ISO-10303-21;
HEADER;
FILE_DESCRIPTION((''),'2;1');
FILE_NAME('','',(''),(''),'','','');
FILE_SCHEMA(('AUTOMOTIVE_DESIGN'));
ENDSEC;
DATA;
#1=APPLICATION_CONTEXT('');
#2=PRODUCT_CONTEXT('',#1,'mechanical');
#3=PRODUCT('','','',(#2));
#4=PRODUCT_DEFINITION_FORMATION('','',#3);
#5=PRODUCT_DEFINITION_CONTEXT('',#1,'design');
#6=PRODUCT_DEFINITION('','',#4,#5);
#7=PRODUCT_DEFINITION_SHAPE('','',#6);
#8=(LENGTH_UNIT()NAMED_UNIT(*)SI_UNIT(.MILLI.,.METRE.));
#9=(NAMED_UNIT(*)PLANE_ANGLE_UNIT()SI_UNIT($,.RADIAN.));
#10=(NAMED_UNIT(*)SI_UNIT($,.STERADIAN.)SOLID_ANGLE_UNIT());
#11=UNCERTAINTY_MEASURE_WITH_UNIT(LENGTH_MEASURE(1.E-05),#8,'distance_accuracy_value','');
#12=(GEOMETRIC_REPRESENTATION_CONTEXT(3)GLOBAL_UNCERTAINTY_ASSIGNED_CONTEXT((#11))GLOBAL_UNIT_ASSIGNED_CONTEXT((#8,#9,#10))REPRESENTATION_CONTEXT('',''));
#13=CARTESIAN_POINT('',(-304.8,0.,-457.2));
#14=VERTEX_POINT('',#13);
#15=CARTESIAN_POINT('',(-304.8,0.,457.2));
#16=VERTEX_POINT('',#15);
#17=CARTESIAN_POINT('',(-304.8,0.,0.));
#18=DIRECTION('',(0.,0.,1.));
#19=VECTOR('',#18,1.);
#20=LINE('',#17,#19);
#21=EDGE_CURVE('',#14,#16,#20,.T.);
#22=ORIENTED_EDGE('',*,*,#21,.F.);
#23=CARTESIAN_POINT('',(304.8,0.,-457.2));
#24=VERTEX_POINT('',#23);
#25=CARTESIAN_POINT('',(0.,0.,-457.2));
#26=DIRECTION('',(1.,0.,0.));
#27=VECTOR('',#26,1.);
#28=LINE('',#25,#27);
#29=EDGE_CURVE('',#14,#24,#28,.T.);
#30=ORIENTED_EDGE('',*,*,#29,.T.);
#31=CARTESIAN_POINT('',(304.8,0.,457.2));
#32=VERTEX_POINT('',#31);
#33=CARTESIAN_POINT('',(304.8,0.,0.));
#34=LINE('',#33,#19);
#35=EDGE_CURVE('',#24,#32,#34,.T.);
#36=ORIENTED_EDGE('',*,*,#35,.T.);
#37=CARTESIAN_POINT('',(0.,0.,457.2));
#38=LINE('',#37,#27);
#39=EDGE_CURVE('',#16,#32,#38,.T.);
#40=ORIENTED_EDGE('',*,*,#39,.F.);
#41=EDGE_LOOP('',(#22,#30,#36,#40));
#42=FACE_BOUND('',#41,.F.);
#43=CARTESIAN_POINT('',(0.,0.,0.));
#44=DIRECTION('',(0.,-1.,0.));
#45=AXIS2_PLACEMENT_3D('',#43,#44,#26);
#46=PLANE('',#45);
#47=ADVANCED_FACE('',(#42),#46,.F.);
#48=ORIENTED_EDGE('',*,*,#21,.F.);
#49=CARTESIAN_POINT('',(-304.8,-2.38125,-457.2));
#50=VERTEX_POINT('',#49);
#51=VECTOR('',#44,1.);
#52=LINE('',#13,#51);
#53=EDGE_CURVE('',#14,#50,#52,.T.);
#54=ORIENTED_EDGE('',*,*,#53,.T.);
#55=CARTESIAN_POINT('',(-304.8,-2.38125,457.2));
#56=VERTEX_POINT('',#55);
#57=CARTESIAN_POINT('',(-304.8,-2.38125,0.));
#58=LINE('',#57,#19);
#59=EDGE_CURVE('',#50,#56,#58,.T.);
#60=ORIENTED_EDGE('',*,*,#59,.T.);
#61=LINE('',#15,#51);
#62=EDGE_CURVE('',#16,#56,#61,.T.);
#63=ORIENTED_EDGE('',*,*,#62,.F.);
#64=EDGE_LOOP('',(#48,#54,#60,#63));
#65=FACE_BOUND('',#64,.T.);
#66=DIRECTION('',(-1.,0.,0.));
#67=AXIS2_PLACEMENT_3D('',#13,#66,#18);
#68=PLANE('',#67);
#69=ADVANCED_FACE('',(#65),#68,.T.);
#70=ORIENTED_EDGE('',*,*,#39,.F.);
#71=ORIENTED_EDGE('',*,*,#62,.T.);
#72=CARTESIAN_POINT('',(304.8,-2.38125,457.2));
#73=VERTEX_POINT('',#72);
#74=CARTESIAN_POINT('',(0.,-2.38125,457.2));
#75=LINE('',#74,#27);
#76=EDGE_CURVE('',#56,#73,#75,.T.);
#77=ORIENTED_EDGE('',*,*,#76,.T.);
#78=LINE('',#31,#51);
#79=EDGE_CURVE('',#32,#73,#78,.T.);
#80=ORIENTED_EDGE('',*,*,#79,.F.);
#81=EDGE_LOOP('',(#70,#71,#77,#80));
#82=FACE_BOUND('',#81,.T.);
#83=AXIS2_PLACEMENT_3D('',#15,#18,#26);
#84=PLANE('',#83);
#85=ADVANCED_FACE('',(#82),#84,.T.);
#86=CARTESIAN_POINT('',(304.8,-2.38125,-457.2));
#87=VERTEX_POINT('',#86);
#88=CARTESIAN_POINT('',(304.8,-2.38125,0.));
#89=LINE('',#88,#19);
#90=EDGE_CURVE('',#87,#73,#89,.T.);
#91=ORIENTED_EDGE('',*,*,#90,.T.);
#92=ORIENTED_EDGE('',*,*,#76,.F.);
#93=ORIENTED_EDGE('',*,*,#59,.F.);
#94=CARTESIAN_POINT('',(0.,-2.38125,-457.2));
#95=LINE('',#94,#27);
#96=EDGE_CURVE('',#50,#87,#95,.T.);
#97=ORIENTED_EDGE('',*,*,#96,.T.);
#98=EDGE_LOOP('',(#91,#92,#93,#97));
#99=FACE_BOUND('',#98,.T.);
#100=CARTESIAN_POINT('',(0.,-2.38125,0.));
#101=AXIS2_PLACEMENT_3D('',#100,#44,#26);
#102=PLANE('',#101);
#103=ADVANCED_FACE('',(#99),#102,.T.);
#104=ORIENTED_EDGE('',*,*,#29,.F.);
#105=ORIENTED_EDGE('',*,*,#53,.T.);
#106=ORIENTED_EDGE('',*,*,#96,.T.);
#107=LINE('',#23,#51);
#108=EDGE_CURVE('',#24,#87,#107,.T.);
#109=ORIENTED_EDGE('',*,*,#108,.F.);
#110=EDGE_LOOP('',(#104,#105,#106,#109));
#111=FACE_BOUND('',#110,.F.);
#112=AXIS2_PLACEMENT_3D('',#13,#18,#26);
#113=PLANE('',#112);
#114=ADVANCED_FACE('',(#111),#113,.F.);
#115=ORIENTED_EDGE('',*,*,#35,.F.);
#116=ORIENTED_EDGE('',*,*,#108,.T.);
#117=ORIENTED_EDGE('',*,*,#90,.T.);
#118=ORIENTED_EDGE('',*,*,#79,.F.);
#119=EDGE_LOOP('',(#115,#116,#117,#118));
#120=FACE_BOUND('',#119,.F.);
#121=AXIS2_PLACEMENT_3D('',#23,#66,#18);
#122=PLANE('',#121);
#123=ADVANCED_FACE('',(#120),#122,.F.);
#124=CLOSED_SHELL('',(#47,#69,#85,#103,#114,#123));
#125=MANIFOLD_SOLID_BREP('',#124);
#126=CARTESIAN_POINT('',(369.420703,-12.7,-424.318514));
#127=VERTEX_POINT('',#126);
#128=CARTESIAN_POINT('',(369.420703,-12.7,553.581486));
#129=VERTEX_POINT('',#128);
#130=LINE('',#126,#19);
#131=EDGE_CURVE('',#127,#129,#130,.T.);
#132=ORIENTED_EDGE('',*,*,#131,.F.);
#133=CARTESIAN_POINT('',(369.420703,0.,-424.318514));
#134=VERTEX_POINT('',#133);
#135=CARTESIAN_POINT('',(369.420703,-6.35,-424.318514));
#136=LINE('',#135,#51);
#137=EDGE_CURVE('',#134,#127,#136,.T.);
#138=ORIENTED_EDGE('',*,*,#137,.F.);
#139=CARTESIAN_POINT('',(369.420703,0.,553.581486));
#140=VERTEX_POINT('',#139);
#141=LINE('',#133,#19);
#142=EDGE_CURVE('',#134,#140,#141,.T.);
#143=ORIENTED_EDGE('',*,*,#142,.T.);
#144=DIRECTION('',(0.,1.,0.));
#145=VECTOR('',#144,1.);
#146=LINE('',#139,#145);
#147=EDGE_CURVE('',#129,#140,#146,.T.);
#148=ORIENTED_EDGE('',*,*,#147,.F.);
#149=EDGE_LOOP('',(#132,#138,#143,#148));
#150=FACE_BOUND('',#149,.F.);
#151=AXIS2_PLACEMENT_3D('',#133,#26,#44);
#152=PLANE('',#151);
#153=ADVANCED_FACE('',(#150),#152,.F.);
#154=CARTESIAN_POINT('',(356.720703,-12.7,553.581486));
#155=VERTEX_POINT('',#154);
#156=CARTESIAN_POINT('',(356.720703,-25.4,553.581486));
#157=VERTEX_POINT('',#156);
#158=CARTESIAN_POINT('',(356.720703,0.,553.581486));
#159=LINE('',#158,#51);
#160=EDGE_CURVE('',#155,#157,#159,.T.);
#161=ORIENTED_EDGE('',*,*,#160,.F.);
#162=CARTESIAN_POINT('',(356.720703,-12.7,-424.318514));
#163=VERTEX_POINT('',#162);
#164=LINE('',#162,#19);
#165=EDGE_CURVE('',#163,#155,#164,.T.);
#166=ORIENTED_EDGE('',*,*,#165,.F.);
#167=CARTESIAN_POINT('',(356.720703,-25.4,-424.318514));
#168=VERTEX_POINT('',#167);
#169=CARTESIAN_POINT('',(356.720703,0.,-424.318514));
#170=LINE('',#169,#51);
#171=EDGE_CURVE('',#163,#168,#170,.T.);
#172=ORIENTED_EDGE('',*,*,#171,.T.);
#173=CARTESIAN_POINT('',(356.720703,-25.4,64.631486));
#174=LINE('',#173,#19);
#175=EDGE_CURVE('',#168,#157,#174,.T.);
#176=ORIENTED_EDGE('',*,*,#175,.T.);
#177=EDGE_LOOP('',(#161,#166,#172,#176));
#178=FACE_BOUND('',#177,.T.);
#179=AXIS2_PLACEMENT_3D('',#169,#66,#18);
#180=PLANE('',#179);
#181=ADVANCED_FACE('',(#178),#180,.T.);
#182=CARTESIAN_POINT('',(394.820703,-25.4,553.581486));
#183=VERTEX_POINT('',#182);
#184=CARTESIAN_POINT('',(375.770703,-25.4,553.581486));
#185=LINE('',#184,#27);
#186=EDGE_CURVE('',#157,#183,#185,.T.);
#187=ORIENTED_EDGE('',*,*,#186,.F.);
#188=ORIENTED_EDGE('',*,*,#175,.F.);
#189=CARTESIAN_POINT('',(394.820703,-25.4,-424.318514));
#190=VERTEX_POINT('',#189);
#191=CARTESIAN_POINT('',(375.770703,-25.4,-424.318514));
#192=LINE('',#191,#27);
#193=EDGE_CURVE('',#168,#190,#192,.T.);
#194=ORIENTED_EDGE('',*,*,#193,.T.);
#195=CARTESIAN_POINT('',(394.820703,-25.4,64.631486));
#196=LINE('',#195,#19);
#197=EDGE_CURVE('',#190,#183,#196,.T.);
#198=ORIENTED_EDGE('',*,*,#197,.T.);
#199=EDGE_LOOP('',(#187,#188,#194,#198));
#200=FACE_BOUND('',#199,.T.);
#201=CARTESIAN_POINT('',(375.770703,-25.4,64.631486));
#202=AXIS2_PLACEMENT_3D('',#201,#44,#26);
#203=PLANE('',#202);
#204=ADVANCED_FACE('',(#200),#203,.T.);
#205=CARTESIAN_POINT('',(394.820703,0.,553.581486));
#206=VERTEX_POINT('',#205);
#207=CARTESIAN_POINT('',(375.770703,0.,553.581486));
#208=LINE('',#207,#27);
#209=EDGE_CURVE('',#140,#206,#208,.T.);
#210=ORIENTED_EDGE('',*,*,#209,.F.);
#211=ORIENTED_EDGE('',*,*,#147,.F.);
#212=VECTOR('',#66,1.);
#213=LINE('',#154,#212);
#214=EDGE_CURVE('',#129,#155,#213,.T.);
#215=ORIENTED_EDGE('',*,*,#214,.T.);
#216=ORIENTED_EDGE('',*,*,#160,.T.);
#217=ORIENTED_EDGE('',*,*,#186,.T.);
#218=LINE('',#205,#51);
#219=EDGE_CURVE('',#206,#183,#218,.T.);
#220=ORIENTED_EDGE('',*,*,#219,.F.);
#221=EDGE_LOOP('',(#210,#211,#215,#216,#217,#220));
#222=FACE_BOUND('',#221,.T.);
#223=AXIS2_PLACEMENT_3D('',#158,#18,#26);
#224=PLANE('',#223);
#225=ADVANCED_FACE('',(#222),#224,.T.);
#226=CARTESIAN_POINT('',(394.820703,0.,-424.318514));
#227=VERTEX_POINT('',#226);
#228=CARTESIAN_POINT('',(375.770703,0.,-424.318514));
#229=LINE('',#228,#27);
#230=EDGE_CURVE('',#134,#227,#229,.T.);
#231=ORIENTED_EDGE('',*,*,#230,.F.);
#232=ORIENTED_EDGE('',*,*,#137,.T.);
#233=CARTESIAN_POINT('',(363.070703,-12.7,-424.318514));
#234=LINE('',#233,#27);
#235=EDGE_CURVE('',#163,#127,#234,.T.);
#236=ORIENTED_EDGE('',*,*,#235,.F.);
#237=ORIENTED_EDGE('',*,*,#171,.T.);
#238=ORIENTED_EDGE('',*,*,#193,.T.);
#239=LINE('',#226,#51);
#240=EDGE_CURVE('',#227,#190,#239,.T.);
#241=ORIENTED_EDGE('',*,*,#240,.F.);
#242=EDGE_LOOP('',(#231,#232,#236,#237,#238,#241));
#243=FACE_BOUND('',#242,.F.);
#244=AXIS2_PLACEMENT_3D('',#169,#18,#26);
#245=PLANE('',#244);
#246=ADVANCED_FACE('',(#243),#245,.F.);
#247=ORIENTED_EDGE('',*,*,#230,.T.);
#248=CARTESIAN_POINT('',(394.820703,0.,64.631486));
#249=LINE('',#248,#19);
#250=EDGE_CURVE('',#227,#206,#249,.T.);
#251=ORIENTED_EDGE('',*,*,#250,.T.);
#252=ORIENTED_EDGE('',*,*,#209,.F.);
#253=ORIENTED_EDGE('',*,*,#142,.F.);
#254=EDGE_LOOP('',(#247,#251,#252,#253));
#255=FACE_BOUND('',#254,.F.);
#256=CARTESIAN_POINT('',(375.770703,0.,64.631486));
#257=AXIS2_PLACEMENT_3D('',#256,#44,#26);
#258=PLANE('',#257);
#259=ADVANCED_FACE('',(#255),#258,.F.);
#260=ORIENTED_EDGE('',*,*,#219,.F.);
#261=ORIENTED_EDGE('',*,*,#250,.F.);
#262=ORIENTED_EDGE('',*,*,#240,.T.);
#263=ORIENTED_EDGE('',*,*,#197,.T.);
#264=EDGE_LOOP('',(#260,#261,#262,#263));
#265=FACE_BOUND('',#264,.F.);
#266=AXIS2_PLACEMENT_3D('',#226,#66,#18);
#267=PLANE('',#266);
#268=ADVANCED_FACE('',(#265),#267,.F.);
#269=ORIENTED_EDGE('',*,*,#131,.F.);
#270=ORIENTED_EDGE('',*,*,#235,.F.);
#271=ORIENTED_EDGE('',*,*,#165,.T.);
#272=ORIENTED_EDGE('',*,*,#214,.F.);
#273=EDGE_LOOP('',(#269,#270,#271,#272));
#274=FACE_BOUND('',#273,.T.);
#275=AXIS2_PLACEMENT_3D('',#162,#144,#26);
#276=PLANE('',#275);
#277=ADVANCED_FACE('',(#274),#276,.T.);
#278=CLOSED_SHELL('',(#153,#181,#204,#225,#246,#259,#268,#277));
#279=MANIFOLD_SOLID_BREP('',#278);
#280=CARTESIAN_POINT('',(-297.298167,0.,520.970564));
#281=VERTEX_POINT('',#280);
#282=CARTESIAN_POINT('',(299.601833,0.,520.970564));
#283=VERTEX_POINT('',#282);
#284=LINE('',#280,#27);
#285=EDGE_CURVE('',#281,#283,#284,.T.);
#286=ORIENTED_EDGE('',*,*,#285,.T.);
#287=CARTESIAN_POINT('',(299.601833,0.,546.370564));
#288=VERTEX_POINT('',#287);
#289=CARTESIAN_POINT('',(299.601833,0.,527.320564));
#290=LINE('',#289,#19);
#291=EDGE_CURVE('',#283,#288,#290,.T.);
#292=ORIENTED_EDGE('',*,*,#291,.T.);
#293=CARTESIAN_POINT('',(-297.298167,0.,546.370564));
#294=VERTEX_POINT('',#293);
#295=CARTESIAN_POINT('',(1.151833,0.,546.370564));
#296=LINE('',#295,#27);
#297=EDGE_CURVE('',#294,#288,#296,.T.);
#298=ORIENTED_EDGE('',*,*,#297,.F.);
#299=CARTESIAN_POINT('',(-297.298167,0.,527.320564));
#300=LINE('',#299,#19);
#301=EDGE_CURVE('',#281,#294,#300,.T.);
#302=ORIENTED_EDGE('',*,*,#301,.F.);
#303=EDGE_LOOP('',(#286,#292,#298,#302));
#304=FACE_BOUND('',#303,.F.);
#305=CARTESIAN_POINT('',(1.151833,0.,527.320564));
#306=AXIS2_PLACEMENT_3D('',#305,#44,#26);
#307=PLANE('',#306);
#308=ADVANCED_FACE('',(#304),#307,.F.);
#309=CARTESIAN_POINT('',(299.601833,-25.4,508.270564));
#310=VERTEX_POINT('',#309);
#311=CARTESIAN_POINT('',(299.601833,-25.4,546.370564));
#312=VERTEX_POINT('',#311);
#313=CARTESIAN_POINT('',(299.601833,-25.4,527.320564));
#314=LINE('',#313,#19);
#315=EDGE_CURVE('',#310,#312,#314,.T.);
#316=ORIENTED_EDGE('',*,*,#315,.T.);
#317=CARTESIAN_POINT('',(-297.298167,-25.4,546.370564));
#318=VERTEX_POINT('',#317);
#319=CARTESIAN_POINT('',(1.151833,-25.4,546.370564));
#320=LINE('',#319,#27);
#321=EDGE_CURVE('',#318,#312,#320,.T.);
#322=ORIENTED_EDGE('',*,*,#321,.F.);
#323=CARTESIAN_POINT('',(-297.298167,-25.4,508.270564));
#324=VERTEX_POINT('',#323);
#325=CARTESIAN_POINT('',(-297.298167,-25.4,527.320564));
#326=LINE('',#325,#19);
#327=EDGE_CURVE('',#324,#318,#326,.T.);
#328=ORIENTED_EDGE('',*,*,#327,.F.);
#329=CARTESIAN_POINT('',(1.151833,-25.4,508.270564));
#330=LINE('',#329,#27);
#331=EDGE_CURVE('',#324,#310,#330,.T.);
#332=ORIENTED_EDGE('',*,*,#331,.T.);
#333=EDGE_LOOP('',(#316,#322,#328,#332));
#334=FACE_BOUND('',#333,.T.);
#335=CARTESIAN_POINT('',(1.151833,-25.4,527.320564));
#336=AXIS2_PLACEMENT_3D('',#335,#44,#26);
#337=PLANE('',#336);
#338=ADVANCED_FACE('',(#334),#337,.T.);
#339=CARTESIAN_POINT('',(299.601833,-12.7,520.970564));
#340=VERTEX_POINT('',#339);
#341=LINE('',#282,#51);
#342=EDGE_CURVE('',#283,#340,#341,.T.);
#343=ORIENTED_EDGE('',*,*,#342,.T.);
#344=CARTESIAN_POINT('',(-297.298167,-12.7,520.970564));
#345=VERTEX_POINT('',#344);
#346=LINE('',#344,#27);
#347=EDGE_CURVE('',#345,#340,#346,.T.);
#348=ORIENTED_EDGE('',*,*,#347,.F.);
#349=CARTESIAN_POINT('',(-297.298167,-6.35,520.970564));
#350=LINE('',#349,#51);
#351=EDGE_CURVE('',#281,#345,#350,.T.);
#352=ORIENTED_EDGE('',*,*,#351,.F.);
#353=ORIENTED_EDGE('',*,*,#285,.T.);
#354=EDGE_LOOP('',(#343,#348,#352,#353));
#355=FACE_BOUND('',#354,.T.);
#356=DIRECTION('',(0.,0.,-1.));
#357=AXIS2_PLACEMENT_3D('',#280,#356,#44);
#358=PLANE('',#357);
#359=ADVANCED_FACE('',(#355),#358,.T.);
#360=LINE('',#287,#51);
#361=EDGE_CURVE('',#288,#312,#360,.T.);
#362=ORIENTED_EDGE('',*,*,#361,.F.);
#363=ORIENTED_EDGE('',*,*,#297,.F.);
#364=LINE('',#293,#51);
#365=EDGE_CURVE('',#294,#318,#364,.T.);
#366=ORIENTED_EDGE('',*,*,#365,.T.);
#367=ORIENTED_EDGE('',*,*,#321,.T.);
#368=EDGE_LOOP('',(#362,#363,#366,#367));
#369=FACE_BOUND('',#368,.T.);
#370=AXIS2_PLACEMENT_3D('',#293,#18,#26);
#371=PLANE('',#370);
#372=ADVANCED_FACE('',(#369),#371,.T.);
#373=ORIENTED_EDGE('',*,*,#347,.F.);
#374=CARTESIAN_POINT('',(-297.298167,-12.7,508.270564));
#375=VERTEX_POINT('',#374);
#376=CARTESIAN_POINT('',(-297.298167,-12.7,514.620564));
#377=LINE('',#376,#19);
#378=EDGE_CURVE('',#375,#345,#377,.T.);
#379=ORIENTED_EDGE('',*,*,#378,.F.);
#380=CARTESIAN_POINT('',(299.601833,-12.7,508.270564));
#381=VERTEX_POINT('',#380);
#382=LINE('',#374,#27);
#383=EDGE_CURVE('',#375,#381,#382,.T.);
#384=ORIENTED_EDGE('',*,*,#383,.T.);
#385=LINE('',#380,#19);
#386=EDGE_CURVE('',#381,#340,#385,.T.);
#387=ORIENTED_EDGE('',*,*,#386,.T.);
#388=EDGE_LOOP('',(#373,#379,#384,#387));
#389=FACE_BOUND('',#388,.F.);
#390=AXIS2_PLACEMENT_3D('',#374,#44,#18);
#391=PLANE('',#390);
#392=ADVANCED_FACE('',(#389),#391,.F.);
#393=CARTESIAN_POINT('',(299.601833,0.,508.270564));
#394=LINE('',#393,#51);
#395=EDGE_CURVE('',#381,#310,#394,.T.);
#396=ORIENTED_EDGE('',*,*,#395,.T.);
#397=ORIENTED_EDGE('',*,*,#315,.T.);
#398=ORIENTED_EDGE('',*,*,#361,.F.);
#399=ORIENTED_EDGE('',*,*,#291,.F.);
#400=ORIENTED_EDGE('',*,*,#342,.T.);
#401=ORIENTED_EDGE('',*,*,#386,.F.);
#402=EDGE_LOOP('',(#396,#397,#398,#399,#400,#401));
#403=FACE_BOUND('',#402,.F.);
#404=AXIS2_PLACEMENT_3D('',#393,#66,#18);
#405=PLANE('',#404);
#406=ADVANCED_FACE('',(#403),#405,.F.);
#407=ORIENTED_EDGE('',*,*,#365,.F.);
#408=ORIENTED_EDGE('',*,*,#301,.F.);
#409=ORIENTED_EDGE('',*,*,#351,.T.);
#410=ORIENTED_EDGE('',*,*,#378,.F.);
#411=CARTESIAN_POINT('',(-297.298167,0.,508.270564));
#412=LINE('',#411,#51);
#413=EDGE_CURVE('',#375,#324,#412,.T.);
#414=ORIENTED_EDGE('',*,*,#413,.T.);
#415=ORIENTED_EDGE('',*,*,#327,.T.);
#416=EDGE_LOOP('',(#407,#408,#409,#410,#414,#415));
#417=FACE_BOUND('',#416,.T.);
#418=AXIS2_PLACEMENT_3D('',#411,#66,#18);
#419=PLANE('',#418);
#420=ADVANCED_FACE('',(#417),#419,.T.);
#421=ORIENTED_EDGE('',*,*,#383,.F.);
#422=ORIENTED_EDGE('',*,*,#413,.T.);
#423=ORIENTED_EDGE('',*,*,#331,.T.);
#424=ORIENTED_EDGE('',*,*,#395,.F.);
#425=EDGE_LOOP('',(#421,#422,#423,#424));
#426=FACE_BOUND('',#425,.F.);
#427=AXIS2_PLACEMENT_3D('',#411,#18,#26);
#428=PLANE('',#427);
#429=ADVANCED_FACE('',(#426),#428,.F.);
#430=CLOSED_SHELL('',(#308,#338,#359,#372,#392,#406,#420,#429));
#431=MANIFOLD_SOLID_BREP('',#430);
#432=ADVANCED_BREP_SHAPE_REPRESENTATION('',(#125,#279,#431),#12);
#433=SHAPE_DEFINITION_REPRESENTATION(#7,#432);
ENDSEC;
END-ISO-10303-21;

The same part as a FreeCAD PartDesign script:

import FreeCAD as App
import Part
import Sketcher
from FreeCAD import Vector
Q = App.Units.Quantity


def add_polygon(sketch, points):
    """Adds a closed chain of lines whose ends are joined by coincident constraints."""
    first, n = sketch.GeometryCount, len(points)
    for a, b in zip(points, points[1:] + points[:1]):
        sketch.addGeometry(Part.LineSegment(App.Vector(*a, 0), App.Vector(*b, 0)), False)
    for i in range(n):
        sketch.addConstraint(Sketcher.Constraint("Coincident", first + i, 2, first + (i + 1) % n, 1))

doc = App.newDocument("Part")
body = doc.addObject("PartDesign::Body", "Body")

sketch1 = body.newObject("Sketcher::SketchObject", "Sketch")
sketch1.AttachmentSupport = (doc.getObject("XZ_Plane"), [""])
sketch1.MapMode = "FlatFace"
add_polygon(sketch1, [(-305, 457), (-305, -457), (305, -457), (305, 457)])
sketch1.addConstraint([
    Sketcher.Constraint("Vertical", 0),
    Sketcher.Constraint("Horizontal", 1),
    Sketcher.Constraint("Vertical", 2),
    Sketcher.Constraint("Horizontal", 3),
    Sketcher.Constraint("Symmetric", 0, 2, 2, 2, -1, 1),
    Sketcher.Constraint("DistanceX", 1, 1, 1, 2, Q("24 in")),
    Sketcher.Constraint("DistanceY", 0, 2, 0, 1, Q("36 in")),
])
pad1 = body.newObject("PartDesign::Pad", "Pad")
pad1.Profile = sketch1
pad1.Length = Q("0.09375 in")
body2 = doc.addObject("PartDesign::Body", "Body001")

sketch2 = body2.newObject("Sketcher::SketchObject", "Sketch001")
sketch2.AttachmentSupport = (doc.getObject("XZ_Plane001"), [""])
sketch2.MapMode = "FlatFace"
add_polygon(sketch2, [(357, 554), (357, -424), (395, -424), (395, 554)])
sketch2.addConstraint([
    Sketcher.Constraint("Vertical", 0),
    Sketcher.Constraint("Horizontal", 1),
    Sketcher.Constraint("Vertical", 2),
    Sketcher.Constraint("Horizontal", 3),
    Sketcher.Constraint("DistanceX", 1, 1, 1, 2, Q("1.5 in")),
    Sketcher.Constraint("DistanceY", 0, 2, 0, 1, Q("38.5 in")),
    Sketcher.Constraint("DistanceX", -1, 1, 0, 2, Q("356.720703 mm")),
    Sketcher.Constraint("DistanceY", 0, 2, -1, 1, Q("424.318514 mm")),
])
pad2 = body2.newObject("PartDesign::Pad", "Pad001")
pad2.Profile = sketch2
pad2.Length = Q("1 in")

sketch3 = body2.newObject("Sketcher::SketchObject", "Sketch002")
sketch3.AttachmentSupport = (doc.getObject("XY_Plane001"), [""])
sketch3.MapMode = "FlatFace"
sketch3.AttachmentOffset = App.Placement(Vector(0, 0, -424.318514), App.Rotation())
add_polygon(sketch3, [(357, -13), (357, 0), (369, 0), (369, -13)])
sketch3.addConstraint([
    Sketcher.Constraint("Vertical", 0),
    Sketcher.Constraint("Horizontal", 1),
    Sketcher.Constraint("Vertical", 2),
    Sketcher.Constraint("Horizontal", 3),
    Sketcher.Constraint("PointOnObject", 0, 2, -1),
    Sketcher.Constraint("Equal", 3, 0),
    Sketcher.Constraint("DistanceX", 1, 1, 1, 2, Q("0.5 in")),
    Sketcher.Constraint("DistanceX", -1, 1, 0, 2, Q("356.720703 mm")),
])
pocket1 = body2.newObject("PartDesign::Pocket", "Pocket")
pocket1.Profile = sketch3
pocket1.Type = "ThroughAll"
pocket1.Reversed = True
body3 = doc.addObject("PartDesign::Body", "Body002")

sketch4 = body3.newObject("Sketcher::SketchObject", "Sketch003")
sketch4.AttachmentSupport = (doc.getObject("XZ_Plane002"), [""])
sketch4.MapMode = "FlatFace"
add_polygon(sketch4, [(-297, 546), (-297, 508), (300, 508), (300, 546)])
sketch4.addConstraint([
    Sketcher.Constraint("Vertical", 0),
    Sketcher.Constraint("Horizontal", 1),
    Sketcher.Constraint("Vertical", 2),
    Sketcher.Constraint("Horizontal", 3),
    Sketcher.Constraint("DistanceX", 1, 1, 1, 2, Q("23.5 in")),
    Sketcher.Constraint("DistanceY", 0, 2, 0, 1, Q("1.5 in")),
    Sketcher.Constraint("DistanceX", 0, 2, -1, 1, Q("297.298167 mm")),
    Sketcher.Constraint("DistanceY", -1, 1, 0, 2, Q("508.270564 mm")),
])
pad3 = body3.newObject("PartDesign::Pad", "Pad002")
pad3.Profile = sketch4
pad3.Length = Q("1 in")

sketch5 = body3.newObject("Sketcher::SketchObject", "Sketch004")
sketch5.AttachmentSupport = (doc.getObject("YZ_Plane002"), [""])
sketch5.MapMode = "FlatFace"
sketch5.AttachmentOffset = App.Placement(Vector(0, 0, -297.298167), App.Rotation())
add_polygon(sketch5, [(0, 521), (0, 508), (-13, 508), (-13, 521)])
sketch5.addConstraint([
    Sketcher.Constraint("Vertical", 0),
    Sketcher.Constraint("Horizontal", 1),
    Sketcher.Constraint("Vertical", 2),
    Sketcher.Constraint("Horizontal", 3),
    Sketcher.Constraint("PointOnObject", 0, 2, -2),
    Sketcher.Constraint("Equal", 3, 0),
    Sketcher.Constraint("DistanceX", 1, 2, 1, 1, Q("0.5 in")),
    Sketcher.Constraint("DistanceY", -1, 1, 0, 2, Q("508.270564 mm")),
])
pocket2 = body3.newObject("PartDesign::Pocket", "Pocket001")
pocket2.Profile = sketch5
pocket2.Length = Q("24 in")
pocket2.Reversed = True

doc.recompute()
